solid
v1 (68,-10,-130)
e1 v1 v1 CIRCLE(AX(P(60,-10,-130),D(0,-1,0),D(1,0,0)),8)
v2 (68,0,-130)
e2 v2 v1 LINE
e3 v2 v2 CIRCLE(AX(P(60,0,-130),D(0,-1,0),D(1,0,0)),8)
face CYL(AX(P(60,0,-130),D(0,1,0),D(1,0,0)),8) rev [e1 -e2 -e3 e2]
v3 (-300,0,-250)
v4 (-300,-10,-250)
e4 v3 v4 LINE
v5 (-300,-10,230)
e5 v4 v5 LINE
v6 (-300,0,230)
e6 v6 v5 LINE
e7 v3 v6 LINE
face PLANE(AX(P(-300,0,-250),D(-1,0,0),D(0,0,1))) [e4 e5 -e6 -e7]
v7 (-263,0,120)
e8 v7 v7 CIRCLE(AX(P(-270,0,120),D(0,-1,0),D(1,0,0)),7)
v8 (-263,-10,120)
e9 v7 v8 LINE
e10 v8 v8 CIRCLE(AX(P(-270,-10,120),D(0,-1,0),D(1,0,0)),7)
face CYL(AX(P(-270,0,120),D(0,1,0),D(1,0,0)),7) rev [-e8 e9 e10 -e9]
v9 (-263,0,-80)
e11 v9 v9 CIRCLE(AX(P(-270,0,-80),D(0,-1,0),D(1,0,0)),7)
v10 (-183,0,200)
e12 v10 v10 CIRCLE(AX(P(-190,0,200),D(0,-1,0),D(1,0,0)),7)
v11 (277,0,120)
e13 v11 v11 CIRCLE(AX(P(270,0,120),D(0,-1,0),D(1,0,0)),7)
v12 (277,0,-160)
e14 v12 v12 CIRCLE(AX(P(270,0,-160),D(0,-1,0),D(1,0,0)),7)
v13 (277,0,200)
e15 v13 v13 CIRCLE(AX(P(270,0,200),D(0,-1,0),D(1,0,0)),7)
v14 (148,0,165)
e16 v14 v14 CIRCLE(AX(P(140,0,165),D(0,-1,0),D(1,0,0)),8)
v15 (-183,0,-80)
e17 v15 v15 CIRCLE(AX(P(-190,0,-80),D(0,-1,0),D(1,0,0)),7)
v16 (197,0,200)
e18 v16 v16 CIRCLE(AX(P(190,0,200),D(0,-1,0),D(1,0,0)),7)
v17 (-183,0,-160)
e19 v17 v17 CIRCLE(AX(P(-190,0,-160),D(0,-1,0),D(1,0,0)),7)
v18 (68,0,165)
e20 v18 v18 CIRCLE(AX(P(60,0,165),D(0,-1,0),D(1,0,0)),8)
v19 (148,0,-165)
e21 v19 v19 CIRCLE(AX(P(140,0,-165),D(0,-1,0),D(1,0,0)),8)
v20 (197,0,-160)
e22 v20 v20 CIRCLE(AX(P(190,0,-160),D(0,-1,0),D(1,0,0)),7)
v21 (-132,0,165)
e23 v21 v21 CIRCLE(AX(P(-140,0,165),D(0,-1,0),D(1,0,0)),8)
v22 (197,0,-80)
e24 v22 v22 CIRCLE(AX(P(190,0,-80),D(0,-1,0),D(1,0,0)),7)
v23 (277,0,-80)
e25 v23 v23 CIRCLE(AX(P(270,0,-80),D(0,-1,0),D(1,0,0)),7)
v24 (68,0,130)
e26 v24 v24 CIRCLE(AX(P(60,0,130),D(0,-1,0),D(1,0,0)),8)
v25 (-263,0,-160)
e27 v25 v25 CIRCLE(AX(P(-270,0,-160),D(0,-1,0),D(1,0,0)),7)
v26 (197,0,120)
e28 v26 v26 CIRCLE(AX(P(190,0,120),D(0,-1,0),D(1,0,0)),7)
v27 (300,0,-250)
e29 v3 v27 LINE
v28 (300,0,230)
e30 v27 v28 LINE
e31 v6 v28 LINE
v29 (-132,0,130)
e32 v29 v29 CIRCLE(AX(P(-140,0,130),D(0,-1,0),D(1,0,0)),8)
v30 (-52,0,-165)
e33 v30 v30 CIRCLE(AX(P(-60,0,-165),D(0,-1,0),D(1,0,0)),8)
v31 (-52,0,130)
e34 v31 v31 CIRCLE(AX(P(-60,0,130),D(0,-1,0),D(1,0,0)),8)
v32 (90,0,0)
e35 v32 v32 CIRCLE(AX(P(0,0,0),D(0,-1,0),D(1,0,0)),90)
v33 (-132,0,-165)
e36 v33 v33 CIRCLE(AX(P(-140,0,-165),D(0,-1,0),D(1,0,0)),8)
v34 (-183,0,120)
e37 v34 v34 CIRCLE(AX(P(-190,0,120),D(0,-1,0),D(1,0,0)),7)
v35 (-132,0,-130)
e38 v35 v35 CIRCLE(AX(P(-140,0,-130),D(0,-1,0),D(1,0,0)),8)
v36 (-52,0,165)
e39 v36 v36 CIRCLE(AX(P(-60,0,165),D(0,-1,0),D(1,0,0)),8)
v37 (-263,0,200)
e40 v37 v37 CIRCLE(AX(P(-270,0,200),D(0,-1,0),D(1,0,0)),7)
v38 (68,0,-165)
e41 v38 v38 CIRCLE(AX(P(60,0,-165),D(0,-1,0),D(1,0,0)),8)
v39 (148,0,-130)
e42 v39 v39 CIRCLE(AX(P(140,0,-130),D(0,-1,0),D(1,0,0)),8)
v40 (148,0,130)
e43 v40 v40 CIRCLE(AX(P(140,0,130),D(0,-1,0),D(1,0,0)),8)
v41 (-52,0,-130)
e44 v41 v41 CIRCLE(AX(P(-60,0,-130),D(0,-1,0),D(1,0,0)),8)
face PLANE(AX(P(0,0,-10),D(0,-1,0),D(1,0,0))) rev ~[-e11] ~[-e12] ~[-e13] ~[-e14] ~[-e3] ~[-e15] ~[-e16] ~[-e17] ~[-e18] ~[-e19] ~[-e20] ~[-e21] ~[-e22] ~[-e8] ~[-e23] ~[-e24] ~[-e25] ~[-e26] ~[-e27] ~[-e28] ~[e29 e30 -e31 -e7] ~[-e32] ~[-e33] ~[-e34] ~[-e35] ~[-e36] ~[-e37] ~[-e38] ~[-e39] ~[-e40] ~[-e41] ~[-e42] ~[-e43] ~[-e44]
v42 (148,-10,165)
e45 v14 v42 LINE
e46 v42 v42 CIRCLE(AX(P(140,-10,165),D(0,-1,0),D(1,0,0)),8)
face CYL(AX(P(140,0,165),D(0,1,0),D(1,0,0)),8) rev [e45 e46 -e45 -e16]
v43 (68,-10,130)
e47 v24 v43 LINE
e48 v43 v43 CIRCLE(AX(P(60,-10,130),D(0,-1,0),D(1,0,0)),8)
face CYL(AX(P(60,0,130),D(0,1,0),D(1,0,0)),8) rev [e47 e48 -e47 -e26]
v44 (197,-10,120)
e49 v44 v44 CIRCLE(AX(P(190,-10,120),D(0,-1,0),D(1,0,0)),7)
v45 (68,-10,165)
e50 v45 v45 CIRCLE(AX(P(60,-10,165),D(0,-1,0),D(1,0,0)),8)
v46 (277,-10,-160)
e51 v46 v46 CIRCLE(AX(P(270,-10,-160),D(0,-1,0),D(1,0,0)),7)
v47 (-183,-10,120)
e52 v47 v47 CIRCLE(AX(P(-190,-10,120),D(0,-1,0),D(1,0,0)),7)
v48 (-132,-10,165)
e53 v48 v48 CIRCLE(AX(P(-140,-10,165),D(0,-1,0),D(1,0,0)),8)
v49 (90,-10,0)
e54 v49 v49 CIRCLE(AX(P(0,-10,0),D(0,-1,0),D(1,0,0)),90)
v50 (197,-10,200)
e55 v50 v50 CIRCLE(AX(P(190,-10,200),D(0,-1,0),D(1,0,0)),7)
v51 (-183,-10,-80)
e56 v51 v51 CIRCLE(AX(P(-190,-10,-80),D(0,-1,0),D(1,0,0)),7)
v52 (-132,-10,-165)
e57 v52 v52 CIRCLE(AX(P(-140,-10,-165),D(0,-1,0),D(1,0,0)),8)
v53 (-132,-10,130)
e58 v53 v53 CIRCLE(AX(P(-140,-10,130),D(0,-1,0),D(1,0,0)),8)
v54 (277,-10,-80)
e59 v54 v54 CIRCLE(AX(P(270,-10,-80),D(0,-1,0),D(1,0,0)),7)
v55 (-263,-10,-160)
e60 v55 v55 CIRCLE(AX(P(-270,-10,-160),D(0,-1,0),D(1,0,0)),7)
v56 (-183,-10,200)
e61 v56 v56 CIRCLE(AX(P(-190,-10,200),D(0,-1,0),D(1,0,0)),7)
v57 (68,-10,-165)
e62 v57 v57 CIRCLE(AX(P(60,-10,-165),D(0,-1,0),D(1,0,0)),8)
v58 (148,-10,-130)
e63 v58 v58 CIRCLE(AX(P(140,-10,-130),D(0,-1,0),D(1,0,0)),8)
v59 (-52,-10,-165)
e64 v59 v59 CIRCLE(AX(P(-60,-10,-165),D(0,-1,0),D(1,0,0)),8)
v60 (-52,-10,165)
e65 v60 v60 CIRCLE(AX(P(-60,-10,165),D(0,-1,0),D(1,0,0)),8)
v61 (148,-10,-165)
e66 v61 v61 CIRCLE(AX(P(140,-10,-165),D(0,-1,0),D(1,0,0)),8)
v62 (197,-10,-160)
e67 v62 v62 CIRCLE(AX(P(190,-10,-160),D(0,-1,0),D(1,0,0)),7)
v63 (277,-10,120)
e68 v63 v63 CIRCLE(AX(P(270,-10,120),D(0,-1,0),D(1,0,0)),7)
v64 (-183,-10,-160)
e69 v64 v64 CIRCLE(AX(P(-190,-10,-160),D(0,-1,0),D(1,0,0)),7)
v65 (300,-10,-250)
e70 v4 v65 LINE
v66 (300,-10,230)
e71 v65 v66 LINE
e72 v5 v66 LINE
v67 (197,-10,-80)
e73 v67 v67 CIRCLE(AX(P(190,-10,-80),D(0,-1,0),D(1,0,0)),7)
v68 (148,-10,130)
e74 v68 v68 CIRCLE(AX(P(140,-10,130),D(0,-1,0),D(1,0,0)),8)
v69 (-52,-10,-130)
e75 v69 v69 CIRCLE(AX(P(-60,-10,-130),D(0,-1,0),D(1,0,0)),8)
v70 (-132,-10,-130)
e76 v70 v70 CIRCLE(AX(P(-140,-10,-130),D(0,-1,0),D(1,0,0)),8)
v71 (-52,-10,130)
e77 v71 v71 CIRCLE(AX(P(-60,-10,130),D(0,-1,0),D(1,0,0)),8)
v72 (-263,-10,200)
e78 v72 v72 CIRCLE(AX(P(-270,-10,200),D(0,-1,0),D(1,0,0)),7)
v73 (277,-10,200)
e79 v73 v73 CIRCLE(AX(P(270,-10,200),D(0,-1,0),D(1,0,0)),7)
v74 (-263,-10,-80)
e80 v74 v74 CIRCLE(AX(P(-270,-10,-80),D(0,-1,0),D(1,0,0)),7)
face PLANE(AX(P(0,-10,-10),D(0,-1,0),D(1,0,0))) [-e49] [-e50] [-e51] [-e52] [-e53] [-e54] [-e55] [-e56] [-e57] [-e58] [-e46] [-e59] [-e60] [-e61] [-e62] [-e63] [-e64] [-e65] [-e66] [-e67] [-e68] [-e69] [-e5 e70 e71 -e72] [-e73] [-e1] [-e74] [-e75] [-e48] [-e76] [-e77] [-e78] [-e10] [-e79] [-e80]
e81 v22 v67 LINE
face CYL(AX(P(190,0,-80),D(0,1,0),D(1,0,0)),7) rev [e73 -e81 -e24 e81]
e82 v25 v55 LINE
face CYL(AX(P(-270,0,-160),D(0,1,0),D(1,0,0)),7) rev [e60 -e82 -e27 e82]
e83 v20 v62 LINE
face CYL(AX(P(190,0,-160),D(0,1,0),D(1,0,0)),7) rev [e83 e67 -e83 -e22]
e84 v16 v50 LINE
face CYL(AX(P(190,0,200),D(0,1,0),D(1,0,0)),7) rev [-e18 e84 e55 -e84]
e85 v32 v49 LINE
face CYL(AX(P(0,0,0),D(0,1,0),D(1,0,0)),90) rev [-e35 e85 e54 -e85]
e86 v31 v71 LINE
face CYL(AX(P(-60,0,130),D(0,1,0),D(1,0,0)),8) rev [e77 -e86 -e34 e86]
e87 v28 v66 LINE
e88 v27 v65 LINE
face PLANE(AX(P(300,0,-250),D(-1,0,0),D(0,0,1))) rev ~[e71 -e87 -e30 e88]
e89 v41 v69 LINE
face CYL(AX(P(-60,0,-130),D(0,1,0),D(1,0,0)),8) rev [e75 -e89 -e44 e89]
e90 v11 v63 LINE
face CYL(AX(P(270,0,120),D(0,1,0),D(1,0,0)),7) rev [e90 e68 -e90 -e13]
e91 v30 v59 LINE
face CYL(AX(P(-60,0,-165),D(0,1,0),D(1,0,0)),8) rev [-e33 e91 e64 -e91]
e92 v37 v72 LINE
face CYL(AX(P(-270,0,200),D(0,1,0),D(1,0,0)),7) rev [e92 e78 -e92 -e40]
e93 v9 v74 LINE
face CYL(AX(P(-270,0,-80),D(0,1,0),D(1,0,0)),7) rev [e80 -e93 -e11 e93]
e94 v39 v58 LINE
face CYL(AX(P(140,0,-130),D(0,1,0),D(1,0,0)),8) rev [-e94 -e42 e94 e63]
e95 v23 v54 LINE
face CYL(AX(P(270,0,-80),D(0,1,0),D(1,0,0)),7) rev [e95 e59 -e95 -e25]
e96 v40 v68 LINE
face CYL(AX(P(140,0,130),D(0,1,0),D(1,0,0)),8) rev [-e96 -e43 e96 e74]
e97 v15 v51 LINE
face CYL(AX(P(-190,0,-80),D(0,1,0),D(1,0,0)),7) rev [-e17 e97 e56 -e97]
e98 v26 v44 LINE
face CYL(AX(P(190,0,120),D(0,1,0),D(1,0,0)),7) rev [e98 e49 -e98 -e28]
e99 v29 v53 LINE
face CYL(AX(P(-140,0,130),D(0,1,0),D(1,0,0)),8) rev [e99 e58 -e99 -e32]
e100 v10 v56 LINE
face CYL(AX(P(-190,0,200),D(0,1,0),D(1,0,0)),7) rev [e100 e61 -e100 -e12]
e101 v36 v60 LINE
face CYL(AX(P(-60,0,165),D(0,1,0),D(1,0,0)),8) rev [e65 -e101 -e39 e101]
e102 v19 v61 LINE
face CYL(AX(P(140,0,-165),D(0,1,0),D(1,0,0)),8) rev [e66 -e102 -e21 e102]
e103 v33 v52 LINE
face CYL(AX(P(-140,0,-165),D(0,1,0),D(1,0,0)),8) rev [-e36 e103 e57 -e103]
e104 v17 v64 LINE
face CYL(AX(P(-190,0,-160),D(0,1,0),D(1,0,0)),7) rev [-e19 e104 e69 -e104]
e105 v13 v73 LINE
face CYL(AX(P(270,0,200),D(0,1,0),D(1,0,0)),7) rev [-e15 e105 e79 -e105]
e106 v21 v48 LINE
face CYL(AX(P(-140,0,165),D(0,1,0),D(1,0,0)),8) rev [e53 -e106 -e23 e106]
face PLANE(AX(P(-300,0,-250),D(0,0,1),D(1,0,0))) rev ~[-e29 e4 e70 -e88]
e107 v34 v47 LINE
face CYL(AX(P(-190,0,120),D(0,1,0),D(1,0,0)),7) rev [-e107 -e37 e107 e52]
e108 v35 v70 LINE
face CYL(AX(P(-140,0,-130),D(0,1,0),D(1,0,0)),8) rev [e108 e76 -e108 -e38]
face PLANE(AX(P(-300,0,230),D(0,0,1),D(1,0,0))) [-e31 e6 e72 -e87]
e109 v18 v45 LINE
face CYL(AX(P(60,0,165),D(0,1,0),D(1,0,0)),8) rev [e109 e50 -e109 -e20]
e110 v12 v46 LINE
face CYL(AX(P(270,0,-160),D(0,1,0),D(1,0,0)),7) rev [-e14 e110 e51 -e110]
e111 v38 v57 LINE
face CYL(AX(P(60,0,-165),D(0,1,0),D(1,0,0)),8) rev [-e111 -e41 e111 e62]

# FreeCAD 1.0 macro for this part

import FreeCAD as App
import Part
import Sketcher
from FreeCAD import Vector
Q = App.Units.Quantity

doc = App.newDocument("Part")
params = doc.addObject("Spreadsheet::Sheet", "Params")
for row, (alias, value) in enumerate([
    ("sketch1_diameter", "14 mm"),
    ("sketch1_diameter2", "16 mm"),
    ("sketch1_diameter3", "180 mm"),
    ("sketch1_width", "600 mm"),
    ("sketch1_height", "480 mm"),
    ("pad1_length", "10 mm"),
], start=1):
    params.set(f"A{row}", alias)
    params.set(f"B{row}", "=" + value)
    params.setAlias(f"B{row}", alias)

body = doc.addObject("PartDesign::Body", "Body")

# Sketch on XZ plane
sketch1 = body.newObject("Sketcher::SketchObject", "Sketch")
sketch1.AttachmentSupport = (doc.getObject("XZ_Plane"), [""])
sketch1.MapMode = "FlatFace"
sketch1.addGeometry([
    Part.LineSegment(Vector(-300, 230, 0), Vector(-300, -250, 0)),  # 0
    Part.LineSegment(Vector(-300, -250, 0), Vector(300, -250, 0)),  # 1
    Part.LineSegment(Vector(300, -250, 0), Vector(300, 230, 0)),  # 2
    Part.LineSegment(Vector(300, 230, 0), Vector(-300, 230, 0)),  # 3
    Part.Circle(Vector(-270, -160, 0), Vector(0, 0, 1), 7),  # 4
    Part.Circle(Vector(-190, -160, 0), Vector(0, 0, 1), 7),  # 5
    Part.Circle(Vector(-140, -165, 0), Vector(0, 0, 1), 8),  # 6
    Part.Circle(Vector(-140, -130, 0), Vector(0, 0, 1), 8),  # 7
    Part.Circle(Vector(-270, -80, 0), Vector(0, 0, 1), 7),  # 8
    Part.Circle(Vector(-190, -80, 0), Vector(0, 0, 1), 7),  # 9
    Part.Circle(Vector(-60, -165, 0), Vector(0, 0, 1), 8),  # 10
    Part.Circle(Vector(-60, -130, 0), Vector(0, 0, 1), 8),  # 11
    Part.Circle(Vector(60, -165, 0), Vector(0, 0, 1), 8),  # 12
    Part.Circle(Vector(60, -130, 0), Vector(0, 0, 1), 8),  # 13
    Part.Circle(Vector(140, -165, 0), Vector(0, 0, 1), 8),  # 14
    Part.Circle(Vector(190, -160, 0), Vector(0, 0, 1), 7),  # 15
    Part.Circle(Vector(140, -130, 0), Vector(0, 0, 1), 8),  # 16
    Part.Circle(Vector(270, -160, 0), Vector(0, 0, 1), 7),  # 17
    Part.Circle(Vector(190, -80, 0), Vector(0, 0, 1), 7),  # 18
    Part.Circle(Vector(270, -80, 0), Vector(0, 0, 1), 7),  # 19
    Part.Circle(Vector(0, 0, 0), Vector(0, 0, 1), 90),  # 20
    Part.Circle(Vector(-270, 120, 0), Vector(0, 0, 1), 7),  # 21
    Part.Circle(Vector(-190, 120, 0), Vector(0, 0, 1), 7),  # 22
    Part.Circle(Vector(-140, 130, 0), Vector(0, 0, 1), 8),  # 23
    Part.Circle(Vector(-270, 200, 0), Vector(0, 0, 1), 7),  # 24
    Part.Circle(Vector(-140, 165, 0), Vector(0, 0, 1), 8),  # 25
    Part.Circle(Vector(-190, 200, 0), Vector(0, 0, 1), 7),  # 26
    Part.Circle(Vector(-60, 130, 0), Vector(0, 0, 1), 8),  # 27
    Part.Circle(Vector(-60, 165, 0), Vector(0, 0, 1), 8),  # 28
    Part.Circle(Vector(60, 130, 0), Vector(0, 0, 1), 8),  # 29
    Part.Circle(Vector(60, 165, 0), Vector(0, 0, 1), 8),  # 30
    Part.Circle(Vector(140, 130, 0), Vector(0, 0, 1), 8),  # 31
    Part.Circle(Vector(190, 120, 0), Vector(0, 0, 1), 7),  # 32
    Part.Circle(Vector(270, 120, 0), Vector(0, 0, 1), 7),  # 33
    Part.Circle(Vector(140, 165, 0), Vector(0, 0, 1), 8),  # 34
    Part.Circle(Vector(190, 200, 0), Vector(0, 0, 1), 7),  # 35
    Part.Circle(Vector(270, 200, 0), Vector(0, 0, 1), 7),  # 36
], False)
sketch1.addConstraint([
    Sketcher.Constraint("Coincident", 0, 2, 1, 1),
    Sketcher.Constraint("Coincident", 1, 2, 2, 1),
    Sketcher.Constraint("Coincident", 2, 2, 3, 1),
    Sketcher.Constraint("Coincident", 3, 2, 0, 1),
    Sketcher.Constraint("Vertical", 0),
    Sketcher.Constraint("Horizontal", 1),
    Sketcher.Constraint("Vertical", 2),
    Sketcher.Constraint("Horizontal", 3),
    Sketcher.Constraint("Coincident", 20, 3, -1, 1),
    Sketcher.Constraint("Equal", 4, 5),
    Sketcher.Constraint("Equal", 6, 7),
    Sketcher.Constraint("Equal", 5, 8),
    Sketcher.Constraint("Equal", 8, 9),
    Sketcher.Constraint("Equal", 7, 10),
    Sketcher.Constraint("Equal", 10, 11),
    Sketcher.Constraint("Equal", 11, 12),
    Sketcher.Constraint("Equal", 12, 13),
    Sketcher.Constraint("Equal", 13, 14),
    Sketcher.Constraint("Equal", 9, 15),
    Sketcher.Constraint("Equal", 14, 16),
    Sketcher.Constraint("Equal", 15, 17),
    Sketcher.Constraint("Equal", 17, 18),
    Sketcher.Constraint("Equal", 18, 19),
    Sketcher.Constraint("Equal", 19, 21),
    Sketcher.Constraint("Equal", 21, 22),
    Sketcher.Constraint("Equal", 16, 23),
    Sketcher.Constraint("Equal", 22, 24),
    Sketcher.Constraint("Equal", 23, 25),
    Sketcher.Constraint("Equal", 24, 26),
    Sketcher.Constraint("Equal", 25, 27),
    Sketcher.Constraint("Equal", 27, 28),
    Sketcher.Constraint("Equal", 28, 29),
    Sketcher.Constraint("Equal", 29, 30),
    Sketcher.Constraint("Equal", 30, 31),
    Sketcher.Constraint("Equal", 26, 32),
    Sketcher.Constraint("Equal", 32, 33),
    Sketcher.Constraint("Equal", 31, 34),
    Sketcher.Constraint("Equal", 33, 35),
    Sketcher.Constraint("Equal", 35, 36),
    Sketcher.Constraint("Symmetric", 16, 3, 23, 3, -1, 1),
    Sketcher.Constraint("Symmetric", 14, 3, 25, 3, -1, 1),
    Sketcher.Constraint("Symmetric", 13, 3, 27, 3, -1, 1),
    Sketcher.Constraint("Symmetric", 12, 3, 28, 3, -1, 1),
    Sketcher.Constraint("Symmetric", 11, 3, 29, 3, -1, 1),
    Sketcher.Constraint("Symmetric", 10, 3, 30, 3, -1, 1),
    Sketcher.Constraint("Symmetric", 7, 3, 31, 3, -1, 1),
    Sketcher.Constraint("Symmetric", 6, 3, 34, 3, -1, 1),
    Sketcher.Constraint("Symmetric", 10, 3, 12, 3, -2),
    Sketcher.Constraint("Symmetric", 11, 3, 13, 3, -2),
    Sketcher.Constraint("Symmetric", 6, 3, 14, 3, -2),
    Sketcher.Constraint("Symmetric", 5, 3, 15, 3, -2),
    Sketcher.Constraint("Symmetric", 7, 3, 16, 3, -2),
    Sketcher.Constraint("Symmetric", 4, 3, 17, 3, -2),
    Sketcher.Constraint("Symmetric", 9, 3, 18, 3, -2),
    Sketcher.Constraint("Symmetric", 8, 3, 19, 3, -2),
    Sketcher.Constraint("Symmetric", 22, 3, 32, 3, -2),
    Sketcher.Constraint("Symmetric", 21, 3, 33, 3, -2),
    Sketcher.Constraint("Symmetric", 26, 3, 35, 3, -2),
    Sketcher.Constraint("Symmetric", 24, 3, 36, 3, -2),
    Sketcher.Constraint("Horizontal", 4, 3, 5, 3),
    Sketcher.Constraint("Horizontal", 8, 3, 9, 3),
    Sketcher.Constraint("Horizontal", 6, 3, 10, 3),
    Sketcher.Constraint("Horizontal", 7, 3, 11, 3),
    Sketcher.Constraint("Horizontal", 21, 3, 22, 3),
    Sketcher.Constraint("Horizontal", 24, 3, 26, 3),
    Sketcher.Constraint("Vertical", 6, 3, 7, 3),
    Sketcher.Constraint("Vertical", 4, 3, 8, 3),
    Sketcher.Constraint("Vertical", 5, 3, 9, 3),
    Sketcher.Constraint("Vertical", 10, 3, 11, 3),
    Sketcher.Constraint("Vertical", 8, 3, 21, 3),
    Sketcher.Constraint("Vertical", 9, 3, 22, 3),
    Sketcher.Constraint("Vertical", 21, 3, 24, 3),
    Sketcher.Constraint("Vertical", 22, 3, 26, 3),
    Sketcher.Constraint("Diameter", 4, Q("14 mm")),
    Sketcher.Constraint("Diameter", 6, Q("16 mm")),
    Sketcher.Constraint("Diameter", 20, Q("180 mm")),
    Sketcher.Constraint("DistanceX", 1, 1, 1, 2, Q("600 mm")),
    Sketcher.Constraint("DistanceY", 0, 2, 0, 1, Q("480 mm")),
    Sketcher.Constraint("DistanceX", 4, 3, -1, 1, Q("270 mm")),
    Sketcher.Constraint("DistanceY", 4, 3, -1, 1, Q("160 mm")),
    Sketcher.Constraint("DistanceX", 5, 3, -1, 1, Q("190 mm")),
    Sketcher.Constraint("DistanceX", 6, 3, -1, 1, Q("140 mm")),
    Sketcher.Constraint("DistanceY", 6, 3, -1, 1, Q("165 mm")),
    Sketcher.Constraint("DistanceY", 7, 3, -1, 1, Q("130 mm")),
    Sketcher.Constraint("DistanceY", 8, 3, -1, 1, Q("80 mm")),
    Sketcher.Constraint("DistanceX", 10, 3, -1, 1, Q("60 mm")),
    Sketcher.Constraint("DistanceY", -1, 1, 21, 3, Q("120 mm")),
    Sketcher.Constraint("DistanceY", -1, 1, 24, 3, Q("200 mm")),
    Sketcher.Constraint("DistanceX", 0, 2, -1, 1, Q("300 mm")),
    Sketcher.Constraint("DistanceY", 0, 2, -1, 1, Q("250 mm")),
])
sketch1.setExpression("Constraints[73]", "Params.sketch1_diameter")
sketch1.setExpression("Constraints[74]", "Params.sketch1_diameter2")
sketch1.setExpression("Constraints[75]", "Params.sketch1_diameter3")
sketch1.setExpression("Constraints[76]", "Params.sketch1_width")
sketch1.setExpression("Constraints[77]", "Params.sketch1_height")
pad1 = body.newObject("PartDesign::Pad", "Pad")
pad1.Profile = sketch1
pad1.setExpression("Length", "Params.pad1_length")

doc.recompute()
